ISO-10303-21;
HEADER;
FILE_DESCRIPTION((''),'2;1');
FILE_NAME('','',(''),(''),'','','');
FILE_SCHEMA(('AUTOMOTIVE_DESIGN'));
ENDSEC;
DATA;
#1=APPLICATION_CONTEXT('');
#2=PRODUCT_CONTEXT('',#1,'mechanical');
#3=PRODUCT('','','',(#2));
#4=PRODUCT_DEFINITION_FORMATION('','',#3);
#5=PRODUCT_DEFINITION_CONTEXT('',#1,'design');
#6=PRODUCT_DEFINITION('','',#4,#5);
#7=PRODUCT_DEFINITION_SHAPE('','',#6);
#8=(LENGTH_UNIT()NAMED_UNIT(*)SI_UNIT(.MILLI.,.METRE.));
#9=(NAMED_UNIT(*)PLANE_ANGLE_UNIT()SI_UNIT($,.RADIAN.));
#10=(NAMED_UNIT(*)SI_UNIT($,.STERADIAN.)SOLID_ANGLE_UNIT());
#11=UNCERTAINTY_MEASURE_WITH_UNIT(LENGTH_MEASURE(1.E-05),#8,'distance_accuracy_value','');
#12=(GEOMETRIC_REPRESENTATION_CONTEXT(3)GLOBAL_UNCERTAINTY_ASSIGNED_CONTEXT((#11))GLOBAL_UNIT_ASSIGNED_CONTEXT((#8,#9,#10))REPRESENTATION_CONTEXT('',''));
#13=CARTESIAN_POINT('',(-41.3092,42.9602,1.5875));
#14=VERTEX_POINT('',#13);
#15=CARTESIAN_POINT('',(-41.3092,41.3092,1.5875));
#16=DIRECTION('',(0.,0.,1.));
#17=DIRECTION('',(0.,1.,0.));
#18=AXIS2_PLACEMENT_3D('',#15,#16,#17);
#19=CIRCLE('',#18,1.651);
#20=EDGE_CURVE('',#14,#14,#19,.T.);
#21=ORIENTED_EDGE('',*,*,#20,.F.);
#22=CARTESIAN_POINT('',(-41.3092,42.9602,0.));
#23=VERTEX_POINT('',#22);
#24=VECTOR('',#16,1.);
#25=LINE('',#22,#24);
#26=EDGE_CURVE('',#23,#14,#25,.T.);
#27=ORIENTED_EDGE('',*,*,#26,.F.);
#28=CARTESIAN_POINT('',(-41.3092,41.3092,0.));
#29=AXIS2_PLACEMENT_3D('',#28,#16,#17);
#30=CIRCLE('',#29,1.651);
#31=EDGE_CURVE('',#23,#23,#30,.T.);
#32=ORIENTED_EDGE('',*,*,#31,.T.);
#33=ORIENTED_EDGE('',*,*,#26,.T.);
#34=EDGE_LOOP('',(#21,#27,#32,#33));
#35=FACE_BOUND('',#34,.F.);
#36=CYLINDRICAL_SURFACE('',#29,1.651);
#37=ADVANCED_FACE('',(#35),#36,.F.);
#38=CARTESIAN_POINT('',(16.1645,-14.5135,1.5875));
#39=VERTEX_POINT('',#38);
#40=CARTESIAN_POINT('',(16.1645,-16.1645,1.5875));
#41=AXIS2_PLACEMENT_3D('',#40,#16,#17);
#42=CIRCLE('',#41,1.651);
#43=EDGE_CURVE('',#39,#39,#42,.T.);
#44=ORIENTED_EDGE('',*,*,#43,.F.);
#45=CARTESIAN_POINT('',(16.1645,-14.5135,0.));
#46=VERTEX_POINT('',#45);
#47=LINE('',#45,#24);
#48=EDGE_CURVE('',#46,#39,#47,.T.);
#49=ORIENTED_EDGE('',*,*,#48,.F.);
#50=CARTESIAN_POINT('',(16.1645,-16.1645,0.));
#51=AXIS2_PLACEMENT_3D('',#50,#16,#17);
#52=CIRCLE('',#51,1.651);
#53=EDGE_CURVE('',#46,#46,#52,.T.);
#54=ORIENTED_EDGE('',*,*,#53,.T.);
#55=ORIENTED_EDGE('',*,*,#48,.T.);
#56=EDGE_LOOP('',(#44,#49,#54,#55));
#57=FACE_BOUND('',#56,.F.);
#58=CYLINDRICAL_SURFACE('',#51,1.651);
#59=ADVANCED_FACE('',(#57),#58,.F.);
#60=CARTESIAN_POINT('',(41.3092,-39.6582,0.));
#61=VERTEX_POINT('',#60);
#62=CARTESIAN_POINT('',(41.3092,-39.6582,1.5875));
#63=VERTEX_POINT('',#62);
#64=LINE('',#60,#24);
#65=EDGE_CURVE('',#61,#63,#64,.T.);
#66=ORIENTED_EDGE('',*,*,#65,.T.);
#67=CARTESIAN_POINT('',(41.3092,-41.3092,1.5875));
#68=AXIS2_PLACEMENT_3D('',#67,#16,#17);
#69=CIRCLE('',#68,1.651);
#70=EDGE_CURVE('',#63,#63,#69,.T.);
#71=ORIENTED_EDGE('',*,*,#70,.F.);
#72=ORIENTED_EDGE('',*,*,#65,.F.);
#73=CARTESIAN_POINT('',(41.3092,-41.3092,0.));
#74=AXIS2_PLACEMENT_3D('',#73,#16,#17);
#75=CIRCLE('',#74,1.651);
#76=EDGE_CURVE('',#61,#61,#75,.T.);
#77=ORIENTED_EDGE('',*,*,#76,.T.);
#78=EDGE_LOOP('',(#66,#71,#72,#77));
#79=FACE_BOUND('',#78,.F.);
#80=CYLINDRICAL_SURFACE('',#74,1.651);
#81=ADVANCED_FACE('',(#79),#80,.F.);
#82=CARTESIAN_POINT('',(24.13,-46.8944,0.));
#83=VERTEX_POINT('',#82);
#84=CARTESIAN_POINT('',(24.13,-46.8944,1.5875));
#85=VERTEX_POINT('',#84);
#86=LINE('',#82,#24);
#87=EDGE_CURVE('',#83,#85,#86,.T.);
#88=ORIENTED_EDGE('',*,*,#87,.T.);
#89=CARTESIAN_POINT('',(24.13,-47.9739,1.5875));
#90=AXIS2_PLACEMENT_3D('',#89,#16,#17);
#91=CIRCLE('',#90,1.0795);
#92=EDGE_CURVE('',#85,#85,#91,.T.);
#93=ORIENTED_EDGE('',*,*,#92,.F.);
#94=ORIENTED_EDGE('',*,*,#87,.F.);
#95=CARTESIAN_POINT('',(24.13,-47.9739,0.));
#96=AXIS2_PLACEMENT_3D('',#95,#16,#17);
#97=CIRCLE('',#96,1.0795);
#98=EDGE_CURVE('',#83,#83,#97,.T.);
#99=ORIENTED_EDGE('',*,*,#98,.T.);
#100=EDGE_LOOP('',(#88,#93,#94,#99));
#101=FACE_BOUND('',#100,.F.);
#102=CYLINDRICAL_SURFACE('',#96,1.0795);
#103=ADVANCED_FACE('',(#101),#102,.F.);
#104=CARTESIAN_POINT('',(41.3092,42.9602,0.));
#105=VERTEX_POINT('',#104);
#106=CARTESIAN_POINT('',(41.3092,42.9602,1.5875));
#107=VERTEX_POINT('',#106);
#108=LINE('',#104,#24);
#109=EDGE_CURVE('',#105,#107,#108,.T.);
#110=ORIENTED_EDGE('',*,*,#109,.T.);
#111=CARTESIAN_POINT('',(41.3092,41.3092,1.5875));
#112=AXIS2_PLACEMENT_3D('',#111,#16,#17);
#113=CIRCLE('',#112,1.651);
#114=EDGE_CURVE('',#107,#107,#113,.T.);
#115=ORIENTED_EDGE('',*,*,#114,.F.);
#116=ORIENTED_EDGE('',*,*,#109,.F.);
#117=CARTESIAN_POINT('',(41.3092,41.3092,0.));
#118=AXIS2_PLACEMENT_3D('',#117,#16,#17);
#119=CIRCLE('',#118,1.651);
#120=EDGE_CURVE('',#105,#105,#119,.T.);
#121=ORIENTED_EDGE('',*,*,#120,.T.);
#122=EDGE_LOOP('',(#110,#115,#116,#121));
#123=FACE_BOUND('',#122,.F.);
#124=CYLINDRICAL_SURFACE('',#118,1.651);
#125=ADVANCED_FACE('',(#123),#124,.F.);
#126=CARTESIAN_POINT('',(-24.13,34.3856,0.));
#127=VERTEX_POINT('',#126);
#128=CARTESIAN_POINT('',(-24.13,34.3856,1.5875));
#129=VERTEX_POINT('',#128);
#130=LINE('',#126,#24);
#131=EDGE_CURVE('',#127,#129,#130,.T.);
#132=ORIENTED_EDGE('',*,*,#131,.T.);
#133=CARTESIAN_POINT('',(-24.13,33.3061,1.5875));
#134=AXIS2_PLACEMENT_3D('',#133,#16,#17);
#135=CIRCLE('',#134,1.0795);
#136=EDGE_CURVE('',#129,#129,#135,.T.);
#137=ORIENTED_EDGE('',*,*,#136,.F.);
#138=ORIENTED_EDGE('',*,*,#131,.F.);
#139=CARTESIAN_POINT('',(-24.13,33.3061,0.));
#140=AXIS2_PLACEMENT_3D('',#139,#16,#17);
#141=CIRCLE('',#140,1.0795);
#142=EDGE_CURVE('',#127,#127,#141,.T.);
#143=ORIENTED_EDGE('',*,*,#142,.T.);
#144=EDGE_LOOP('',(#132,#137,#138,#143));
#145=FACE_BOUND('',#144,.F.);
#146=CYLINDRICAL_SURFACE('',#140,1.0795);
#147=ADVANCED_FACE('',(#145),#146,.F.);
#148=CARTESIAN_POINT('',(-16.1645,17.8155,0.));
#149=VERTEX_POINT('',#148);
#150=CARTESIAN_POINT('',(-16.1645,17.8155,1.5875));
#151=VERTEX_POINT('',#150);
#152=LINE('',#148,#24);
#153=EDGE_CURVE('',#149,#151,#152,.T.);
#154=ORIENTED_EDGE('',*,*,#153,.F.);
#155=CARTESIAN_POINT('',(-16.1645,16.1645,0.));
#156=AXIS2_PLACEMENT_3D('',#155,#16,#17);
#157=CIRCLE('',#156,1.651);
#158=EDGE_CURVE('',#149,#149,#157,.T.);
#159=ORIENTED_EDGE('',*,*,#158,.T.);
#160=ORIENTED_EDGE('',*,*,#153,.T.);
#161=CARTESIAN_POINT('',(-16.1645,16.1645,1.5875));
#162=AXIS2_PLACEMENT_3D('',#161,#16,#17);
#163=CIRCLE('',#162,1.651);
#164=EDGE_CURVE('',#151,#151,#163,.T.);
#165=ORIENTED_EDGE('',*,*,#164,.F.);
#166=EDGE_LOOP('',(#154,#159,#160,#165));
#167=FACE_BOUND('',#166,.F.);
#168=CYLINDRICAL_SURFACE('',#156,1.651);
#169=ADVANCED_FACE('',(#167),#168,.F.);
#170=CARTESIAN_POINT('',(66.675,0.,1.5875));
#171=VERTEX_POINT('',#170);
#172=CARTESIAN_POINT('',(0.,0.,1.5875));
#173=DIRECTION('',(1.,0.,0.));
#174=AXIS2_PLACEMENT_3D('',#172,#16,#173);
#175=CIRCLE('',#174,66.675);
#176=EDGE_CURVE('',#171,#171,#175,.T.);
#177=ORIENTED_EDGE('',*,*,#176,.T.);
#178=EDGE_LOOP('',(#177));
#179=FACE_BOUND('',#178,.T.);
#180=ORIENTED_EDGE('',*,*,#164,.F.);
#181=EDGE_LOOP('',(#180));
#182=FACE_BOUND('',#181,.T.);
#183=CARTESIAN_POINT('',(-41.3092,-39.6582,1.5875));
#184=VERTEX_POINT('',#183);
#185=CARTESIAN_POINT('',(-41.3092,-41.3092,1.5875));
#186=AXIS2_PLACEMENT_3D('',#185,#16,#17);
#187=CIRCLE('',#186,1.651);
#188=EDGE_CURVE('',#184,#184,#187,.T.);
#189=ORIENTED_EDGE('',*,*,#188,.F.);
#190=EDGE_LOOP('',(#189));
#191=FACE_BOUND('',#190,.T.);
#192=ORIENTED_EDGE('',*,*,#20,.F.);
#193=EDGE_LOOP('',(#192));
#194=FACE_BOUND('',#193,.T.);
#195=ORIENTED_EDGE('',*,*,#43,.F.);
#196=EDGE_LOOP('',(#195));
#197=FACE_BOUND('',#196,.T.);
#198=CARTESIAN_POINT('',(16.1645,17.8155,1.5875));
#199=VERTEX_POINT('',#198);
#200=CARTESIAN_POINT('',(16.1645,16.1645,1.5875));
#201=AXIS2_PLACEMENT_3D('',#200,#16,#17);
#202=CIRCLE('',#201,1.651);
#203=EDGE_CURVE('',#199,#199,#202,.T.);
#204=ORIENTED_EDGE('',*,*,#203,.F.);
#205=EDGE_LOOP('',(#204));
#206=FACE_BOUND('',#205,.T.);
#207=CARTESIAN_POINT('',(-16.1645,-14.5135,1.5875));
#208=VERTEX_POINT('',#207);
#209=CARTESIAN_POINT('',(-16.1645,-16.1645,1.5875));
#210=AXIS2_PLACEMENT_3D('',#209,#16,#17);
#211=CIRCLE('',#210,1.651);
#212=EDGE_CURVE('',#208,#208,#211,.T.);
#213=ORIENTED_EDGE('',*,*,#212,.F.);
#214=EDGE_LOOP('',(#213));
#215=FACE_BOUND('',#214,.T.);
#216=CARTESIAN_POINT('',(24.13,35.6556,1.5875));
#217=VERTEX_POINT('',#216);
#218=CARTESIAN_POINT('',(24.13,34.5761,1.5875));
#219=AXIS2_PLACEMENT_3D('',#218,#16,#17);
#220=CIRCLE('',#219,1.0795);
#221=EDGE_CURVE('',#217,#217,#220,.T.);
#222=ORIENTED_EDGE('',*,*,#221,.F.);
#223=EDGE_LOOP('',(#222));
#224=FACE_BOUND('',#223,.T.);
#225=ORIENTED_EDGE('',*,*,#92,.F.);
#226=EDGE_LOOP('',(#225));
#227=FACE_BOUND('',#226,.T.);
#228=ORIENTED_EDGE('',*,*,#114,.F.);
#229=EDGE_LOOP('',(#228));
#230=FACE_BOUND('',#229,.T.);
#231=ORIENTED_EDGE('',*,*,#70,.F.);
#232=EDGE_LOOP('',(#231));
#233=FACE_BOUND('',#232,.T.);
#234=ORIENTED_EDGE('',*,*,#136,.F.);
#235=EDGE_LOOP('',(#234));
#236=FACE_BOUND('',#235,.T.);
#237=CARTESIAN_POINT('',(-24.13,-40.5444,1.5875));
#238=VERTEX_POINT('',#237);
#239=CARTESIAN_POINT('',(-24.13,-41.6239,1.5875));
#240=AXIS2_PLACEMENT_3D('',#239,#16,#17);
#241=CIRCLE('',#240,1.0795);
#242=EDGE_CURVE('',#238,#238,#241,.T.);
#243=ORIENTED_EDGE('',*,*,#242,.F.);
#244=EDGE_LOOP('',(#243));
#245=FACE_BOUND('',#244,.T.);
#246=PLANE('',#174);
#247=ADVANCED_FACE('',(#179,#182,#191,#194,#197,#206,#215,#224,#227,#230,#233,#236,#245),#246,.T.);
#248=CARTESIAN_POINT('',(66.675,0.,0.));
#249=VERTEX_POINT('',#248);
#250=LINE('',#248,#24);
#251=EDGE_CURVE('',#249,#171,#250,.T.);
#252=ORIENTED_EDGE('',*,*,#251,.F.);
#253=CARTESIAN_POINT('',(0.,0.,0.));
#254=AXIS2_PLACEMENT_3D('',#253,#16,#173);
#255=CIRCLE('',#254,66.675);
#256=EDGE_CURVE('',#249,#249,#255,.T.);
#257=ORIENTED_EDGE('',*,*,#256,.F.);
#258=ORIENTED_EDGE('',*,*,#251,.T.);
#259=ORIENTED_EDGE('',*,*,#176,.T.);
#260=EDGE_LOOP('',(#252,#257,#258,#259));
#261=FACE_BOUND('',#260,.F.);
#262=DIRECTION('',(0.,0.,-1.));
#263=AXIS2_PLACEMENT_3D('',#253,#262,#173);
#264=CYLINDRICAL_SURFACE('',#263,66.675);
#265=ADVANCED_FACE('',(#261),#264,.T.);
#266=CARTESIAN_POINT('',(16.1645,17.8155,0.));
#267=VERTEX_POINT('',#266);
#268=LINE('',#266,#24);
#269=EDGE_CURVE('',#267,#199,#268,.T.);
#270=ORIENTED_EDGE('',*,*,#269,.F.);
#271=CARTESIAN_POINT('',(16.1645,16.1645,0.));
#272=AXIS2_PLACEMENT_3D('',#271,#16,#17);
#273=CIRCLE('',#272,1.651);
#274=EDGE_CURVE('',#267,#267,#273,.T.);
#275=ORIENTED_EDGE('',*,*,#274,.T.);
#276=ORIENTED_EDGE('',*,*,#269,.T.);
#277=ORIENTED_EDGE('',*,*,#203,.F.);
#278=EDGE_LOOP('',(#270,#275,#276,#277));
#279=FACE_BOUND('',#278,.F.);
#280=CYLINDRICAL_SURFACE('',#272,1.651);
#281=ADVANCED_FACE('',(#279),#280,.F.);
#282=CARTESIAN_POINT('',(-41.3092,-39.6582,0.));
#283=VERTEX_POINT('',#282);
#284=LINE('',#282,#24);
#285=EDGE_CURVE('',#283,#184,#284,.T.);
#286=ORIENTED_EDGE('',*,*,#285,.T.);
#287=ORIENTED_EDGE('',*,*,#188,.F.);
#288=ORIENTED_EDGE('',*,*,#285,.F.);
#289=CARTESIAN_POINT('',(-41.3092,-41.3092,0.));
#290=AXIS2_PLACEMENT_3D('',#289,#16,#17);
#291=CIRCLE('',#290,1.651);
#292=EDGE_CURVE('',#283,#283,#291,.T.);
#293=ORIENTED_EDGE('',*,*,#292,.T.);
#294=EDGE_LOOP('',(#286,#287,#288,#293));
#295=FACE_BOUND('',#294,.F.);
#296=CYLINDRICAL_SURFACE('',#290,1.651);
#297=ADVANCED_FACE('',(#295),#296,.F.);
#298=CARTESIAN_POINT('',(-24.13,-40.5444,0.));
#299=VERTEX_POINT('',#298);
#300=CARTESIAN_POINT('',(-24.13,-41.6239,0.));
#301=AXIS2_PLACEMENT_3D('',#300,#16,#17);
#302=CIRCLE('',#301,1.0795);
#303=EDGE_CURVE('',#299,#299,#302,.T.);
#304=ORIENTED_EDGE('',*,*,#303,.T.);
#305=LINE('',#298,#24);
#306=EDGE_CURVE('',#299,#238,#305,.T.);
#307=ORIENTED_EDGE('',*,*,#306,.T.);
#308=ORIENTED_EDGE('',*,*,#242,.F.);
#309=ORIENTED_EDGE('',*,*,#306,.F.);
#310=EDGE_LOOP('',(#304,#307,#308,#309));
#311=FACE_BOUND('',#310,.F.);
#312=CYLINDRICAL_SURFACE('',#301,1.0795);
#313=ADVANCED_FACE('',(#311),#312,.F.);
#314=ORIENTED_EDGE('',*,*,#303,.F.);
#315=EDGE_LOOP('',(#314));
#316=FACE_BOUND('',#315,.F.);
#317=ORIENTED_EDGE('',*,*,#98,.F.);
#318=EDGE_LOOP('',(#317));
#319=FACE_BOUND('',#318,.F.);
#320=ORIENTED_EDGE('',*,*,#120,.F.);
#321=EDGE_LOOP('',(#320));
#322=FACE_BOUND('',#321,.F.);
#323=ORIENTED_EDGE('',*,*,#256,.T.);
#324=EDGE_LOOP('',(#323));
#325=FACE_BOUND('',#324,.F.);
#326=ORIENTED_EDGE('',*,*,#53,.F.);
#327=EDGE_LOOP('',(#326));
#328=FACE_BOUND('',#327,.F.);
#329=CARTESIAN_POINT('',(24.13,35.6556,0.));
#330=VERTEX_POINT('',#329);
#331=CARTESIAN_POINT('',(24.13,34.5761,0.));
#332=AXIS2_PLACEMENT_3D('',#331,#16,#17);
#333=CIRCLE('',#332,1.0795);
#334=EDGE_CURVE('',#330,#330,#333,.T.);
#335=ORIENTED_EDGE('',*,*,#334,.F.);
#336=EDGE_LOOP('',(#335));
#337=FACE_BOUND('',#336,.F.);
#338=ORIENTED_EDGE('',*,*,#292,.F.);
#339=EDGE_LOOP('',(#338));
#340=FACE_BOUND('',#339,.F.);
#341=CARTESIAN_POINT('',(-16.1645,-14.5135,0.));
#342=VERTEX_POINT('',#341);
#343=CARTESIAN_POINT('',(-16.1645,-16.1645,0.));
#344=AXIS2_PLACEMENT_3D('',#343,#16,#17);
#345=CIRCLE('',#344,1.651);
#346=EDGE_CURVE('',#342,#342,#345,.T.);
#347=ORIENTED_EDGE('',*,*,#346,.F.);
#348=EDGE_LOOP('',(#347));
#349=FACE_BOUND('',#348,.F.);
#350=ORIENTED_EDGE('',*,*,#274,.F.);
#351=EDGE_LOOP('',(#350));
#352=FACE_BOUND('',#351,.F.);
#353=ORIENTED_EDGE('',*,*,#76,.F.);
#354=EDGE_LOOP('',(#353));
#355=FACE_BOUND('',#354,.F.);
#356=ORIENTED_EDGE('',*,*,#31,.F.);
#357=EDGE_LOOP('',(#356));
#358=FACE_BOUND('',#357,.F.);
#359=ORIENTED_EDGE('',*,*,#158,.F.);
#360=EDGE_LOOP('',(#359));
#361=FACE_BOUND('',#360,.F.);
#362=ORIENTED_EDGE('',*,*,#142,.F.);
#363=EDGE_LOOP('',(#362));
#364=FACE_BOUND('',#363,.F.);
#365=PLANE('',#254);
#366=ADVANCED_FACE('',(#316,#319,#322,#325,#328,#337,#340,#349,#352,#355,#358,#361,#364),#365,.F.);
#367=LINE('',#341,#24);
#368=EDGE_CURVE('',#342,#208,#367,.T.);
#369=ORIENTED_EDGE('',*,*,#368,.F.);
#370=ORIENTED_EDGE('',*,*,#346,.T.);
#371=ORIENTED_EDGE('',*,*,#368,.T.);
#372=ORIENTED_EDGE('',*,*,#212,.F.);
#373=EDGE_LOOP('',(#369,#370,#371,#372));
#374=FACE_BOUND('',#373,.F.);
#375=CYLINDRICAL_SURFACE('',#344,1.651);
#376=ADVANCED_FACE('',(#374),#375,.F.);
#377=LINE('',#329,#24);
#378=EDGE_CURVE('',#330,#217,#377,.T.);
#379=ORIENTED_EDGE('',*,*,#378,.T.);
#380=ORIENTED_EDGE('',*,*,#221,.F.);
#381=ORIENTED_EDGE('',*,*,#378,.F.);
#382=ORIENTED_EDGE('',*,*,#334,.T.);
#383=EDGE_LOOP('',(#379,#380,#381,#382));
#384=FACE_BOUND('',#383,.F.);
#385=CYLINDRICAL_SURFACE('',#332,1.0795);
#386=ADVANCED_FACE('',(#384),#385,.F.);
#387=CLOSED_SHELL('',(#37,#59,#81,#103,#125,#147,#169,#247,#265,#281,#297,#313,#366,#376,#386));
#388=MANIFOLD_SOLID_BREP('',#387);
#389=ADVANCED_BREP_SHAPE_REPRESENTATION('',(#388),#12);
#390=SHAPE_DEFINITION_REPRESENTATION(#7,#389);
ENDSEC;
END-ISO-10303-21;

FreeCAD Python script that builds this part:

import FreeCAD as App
import Part
import Sketcher
Q = App.Units.Quantity

doc = App.newDocument("Part")
params = doc.addObject("Spreadsheet::Sheet", "Params")
for row, (alias, value) in enumerate([
    ("sketch1_diameter", "5.25 in"),
    ("pad1_length", "0.0625 in"),
    ("sketch2_diameter", "0.13 in"),
    ("hole_diameter", "0.13 in"),
    ("sketch3_diameter", "0.085 in"),
    ("hole2_diameter", "0.085 in"),
], start=1):
    params.set(f"A{row}", alias)
    params.set(f"B{row}", "=" + value)
    params.setAlias(f"B{row}", alias)

body = doc.addObject("PartDesign::Body", "Body")

sketch1 = body.newObject("Sketcher::SketchObject", "Sketch")
sketch1.AttachmentSupport = (doc.getObject("XY_Plane"), [""])
sketch1.MapMode = "FlatFace"
sketch1.addGeometry(Part.Circle(App.Vector(0, 0, 0), App.Vector(0, 0, 1), 66.675), False)
sketch1.addConstraint([
    Sketcher.Constraint("Coincident", 0, 3, -1, 1),
    Sketcher.Constraint("Diameter", 0, Q("5.25 in")),
])
sketch1.setExpression("Constraints[1]", "Params.sketch1_diameter")
pad1 = body.newObject("PartDesign::Pad", "Pad")
pad1.Profile = sketch1
pad1.setExpression("Length", "Params.pad1_length")

sketch2 = body.newObject("Sketcher::SketchObject", "Sketch001")
sketch2.AttachmentSupport = (doc.getObject("XY_Plane"), [""])
sketch2.MapMode = "FlatFace"
sketch2.addGeometry([
    Part.Circle(App.Vector(-16.1645, 16.1645, 0), App.Vector(0, 0, 1), 1.651),
    Part.Circle(App.Vector(-41.3092, 41.3092, 0), App.Vector(0, 0, 1), 1.651),
    Part.Circle(App.Vector(-41.3092, -41.3092, 0), App.Vector(0, 0, 1), 1.651),
    Part.Circle(App.Vector(-16.1645, -16.1645, 0), App.Vector(0, 0, 1), 1.651),
    Part.Circle(App.Vector(41.3092, 41.3092, 0), App.Vector(0, 0, 1), 1.651),
    Part.Circle(App.Vector(16.1645, 16.1645, 0), App.Vector(0, 0, 1), 1.651),
    Part.Circle(App.Vector(16.1645, -16.1645, 0), App.Vector(0, 0, 1), 1.651),
    Part.Circle(App.Vector(41.3092, -41.3092, 0), App.Vector(0, 0, 1), 1.651),
], False)
sketch2.addConstraint([
    Sketcher.Constraint("Equal", 0, 1),
    Sketcher.Constraint("Equal", 1, 2),
    Sketcher.Constraint("Equal", 2, 3),
    Sketcher.Constraint("Equal", 3, 4),
    Sketcher.Constraint("Equal", 4, 5),
    Sketcher.Constraint("Equal", 5, 6),
    Sketcher.Constraint("Equal", 6, 7),
    Sketcher.Constraint("Symmetric", 2, 3, 4, 3, -1, 1),
    Sketcher.Constraint("Symmetric", 3, 3, 5, 3, -1, 1),
    Sketcher.Constraint("Symmetric", 0, 3, 6, 3, -1, 1),
    Sketcher.Constraint("Symmetric", 1, 3, 7, 3, -1, 1),
    Sketcher.Constraint("Symmetric", 1, 3, 4, 3, -2),
    Sketcher.Constraint("Symmetric", 0, 3, 5, 3, -2),
    Sketcher.Constraint("Diameter", 0, Q("0.13 in")),
    Sketcher.Constraint("DistanceX", 0, 3, -1, 1, Q("0.6364 in")),
    Sketcher.Constraint("DistanceY", -1, 1, 0, 3, Q("0.6364 in")),
    Sketcher.Constraint("DistanceY", 2, 3, 1, 3, Q("3.2527 in")),
    Sketcher.Constraint("DistanceX", 1, 3, 4, 3, Q("3.2527 in")),
])
sketch2.setExpression("Constraints[13]", "Params.sketch2_diameter")
doc.recompute()
hole = body.newObject("PartDesign::Hole", "Hole")
hole.Profile = sketch2
hole.ThreadType = "None"
hole.setExpression("Diameter", "Params.hole_diameter")
hole.DepthType = "ThroughAll"
hole.Reversed = True

sketch3 = body.newObject("Sketcher::SketchObject", "Sketch002")
sketch3.AttachmentSupport = (doc.getObject("XY_Plane"), [""])
sketch3.MapMode = "FlatFace"
sketch3.addGeometry([
    Part.Circle(App.Vector(24.13, -47.9739, 0), App.Vector(0, 0, 1), 1.0795),
    Part.Circle(App.Vector(24.13, 34.5761, 0), App.Vector(0, 0, 1), 1.0795),
    Part.Circle(App.Vector(-24.13, 33.3061, 0), App.Vector(0, 0, 1), 1.0795),
    Part.Circle(App.Vector(-24.13, -41.6239, 0), App.Vector(0, 0, 1), 1.0795),
], False)
sketch3.addConstraint([
    Sketcher.Constraint("Equal", 0, 1),
    Sketcher.Constraint("Equal", 1, 2),
    Sketcher.Constraint("Equal", 2, 3),
    Sketcher.Constraint("Vertical", 0, 3, 1, 3),
    Sketcher.Constraint("Vertical", 2, 3, 3, 3),
    Sketcher.Constraint("Diameter", 0, Q("0.085 in")),
    Sketcher.Constraint("DistanceY", 3, 3, 1, 3, Q("3 in")),
    Sketcher.Constraint("DistanceX", 2, 3, 1, 3, Q("1.9 in")),
    Sketcher.Constraint("DistanceY", 0, 3, 2, 3, Q("3.2 in")),
    Sketcher.Constraint("DistanceX", -1, 1, 0, 3, Q("0.95 in")),
    Sketcher.Constraint("DistanceY", 0, 3, 1, 3, Q("3.25 in")),
    Sketcher.Constraint("DistanceY", 0, 3, -1, 1, Q("47.974 mm")),
])
sketch3.setExpression("Constraints[5]", "Params.sketch3_diameter")
doc.recompute()
hole2 = body.newObject("PartDesign::Hole", "Hole001")
hole2.Profile = sketch3
hole2.ThreadType = "None"
hole2.setExpression("Diameter", "Params.hole2_diameter")
hole2.DepthType = "ThroughAll"
hole2.Reversed = True

doc.recompute()
